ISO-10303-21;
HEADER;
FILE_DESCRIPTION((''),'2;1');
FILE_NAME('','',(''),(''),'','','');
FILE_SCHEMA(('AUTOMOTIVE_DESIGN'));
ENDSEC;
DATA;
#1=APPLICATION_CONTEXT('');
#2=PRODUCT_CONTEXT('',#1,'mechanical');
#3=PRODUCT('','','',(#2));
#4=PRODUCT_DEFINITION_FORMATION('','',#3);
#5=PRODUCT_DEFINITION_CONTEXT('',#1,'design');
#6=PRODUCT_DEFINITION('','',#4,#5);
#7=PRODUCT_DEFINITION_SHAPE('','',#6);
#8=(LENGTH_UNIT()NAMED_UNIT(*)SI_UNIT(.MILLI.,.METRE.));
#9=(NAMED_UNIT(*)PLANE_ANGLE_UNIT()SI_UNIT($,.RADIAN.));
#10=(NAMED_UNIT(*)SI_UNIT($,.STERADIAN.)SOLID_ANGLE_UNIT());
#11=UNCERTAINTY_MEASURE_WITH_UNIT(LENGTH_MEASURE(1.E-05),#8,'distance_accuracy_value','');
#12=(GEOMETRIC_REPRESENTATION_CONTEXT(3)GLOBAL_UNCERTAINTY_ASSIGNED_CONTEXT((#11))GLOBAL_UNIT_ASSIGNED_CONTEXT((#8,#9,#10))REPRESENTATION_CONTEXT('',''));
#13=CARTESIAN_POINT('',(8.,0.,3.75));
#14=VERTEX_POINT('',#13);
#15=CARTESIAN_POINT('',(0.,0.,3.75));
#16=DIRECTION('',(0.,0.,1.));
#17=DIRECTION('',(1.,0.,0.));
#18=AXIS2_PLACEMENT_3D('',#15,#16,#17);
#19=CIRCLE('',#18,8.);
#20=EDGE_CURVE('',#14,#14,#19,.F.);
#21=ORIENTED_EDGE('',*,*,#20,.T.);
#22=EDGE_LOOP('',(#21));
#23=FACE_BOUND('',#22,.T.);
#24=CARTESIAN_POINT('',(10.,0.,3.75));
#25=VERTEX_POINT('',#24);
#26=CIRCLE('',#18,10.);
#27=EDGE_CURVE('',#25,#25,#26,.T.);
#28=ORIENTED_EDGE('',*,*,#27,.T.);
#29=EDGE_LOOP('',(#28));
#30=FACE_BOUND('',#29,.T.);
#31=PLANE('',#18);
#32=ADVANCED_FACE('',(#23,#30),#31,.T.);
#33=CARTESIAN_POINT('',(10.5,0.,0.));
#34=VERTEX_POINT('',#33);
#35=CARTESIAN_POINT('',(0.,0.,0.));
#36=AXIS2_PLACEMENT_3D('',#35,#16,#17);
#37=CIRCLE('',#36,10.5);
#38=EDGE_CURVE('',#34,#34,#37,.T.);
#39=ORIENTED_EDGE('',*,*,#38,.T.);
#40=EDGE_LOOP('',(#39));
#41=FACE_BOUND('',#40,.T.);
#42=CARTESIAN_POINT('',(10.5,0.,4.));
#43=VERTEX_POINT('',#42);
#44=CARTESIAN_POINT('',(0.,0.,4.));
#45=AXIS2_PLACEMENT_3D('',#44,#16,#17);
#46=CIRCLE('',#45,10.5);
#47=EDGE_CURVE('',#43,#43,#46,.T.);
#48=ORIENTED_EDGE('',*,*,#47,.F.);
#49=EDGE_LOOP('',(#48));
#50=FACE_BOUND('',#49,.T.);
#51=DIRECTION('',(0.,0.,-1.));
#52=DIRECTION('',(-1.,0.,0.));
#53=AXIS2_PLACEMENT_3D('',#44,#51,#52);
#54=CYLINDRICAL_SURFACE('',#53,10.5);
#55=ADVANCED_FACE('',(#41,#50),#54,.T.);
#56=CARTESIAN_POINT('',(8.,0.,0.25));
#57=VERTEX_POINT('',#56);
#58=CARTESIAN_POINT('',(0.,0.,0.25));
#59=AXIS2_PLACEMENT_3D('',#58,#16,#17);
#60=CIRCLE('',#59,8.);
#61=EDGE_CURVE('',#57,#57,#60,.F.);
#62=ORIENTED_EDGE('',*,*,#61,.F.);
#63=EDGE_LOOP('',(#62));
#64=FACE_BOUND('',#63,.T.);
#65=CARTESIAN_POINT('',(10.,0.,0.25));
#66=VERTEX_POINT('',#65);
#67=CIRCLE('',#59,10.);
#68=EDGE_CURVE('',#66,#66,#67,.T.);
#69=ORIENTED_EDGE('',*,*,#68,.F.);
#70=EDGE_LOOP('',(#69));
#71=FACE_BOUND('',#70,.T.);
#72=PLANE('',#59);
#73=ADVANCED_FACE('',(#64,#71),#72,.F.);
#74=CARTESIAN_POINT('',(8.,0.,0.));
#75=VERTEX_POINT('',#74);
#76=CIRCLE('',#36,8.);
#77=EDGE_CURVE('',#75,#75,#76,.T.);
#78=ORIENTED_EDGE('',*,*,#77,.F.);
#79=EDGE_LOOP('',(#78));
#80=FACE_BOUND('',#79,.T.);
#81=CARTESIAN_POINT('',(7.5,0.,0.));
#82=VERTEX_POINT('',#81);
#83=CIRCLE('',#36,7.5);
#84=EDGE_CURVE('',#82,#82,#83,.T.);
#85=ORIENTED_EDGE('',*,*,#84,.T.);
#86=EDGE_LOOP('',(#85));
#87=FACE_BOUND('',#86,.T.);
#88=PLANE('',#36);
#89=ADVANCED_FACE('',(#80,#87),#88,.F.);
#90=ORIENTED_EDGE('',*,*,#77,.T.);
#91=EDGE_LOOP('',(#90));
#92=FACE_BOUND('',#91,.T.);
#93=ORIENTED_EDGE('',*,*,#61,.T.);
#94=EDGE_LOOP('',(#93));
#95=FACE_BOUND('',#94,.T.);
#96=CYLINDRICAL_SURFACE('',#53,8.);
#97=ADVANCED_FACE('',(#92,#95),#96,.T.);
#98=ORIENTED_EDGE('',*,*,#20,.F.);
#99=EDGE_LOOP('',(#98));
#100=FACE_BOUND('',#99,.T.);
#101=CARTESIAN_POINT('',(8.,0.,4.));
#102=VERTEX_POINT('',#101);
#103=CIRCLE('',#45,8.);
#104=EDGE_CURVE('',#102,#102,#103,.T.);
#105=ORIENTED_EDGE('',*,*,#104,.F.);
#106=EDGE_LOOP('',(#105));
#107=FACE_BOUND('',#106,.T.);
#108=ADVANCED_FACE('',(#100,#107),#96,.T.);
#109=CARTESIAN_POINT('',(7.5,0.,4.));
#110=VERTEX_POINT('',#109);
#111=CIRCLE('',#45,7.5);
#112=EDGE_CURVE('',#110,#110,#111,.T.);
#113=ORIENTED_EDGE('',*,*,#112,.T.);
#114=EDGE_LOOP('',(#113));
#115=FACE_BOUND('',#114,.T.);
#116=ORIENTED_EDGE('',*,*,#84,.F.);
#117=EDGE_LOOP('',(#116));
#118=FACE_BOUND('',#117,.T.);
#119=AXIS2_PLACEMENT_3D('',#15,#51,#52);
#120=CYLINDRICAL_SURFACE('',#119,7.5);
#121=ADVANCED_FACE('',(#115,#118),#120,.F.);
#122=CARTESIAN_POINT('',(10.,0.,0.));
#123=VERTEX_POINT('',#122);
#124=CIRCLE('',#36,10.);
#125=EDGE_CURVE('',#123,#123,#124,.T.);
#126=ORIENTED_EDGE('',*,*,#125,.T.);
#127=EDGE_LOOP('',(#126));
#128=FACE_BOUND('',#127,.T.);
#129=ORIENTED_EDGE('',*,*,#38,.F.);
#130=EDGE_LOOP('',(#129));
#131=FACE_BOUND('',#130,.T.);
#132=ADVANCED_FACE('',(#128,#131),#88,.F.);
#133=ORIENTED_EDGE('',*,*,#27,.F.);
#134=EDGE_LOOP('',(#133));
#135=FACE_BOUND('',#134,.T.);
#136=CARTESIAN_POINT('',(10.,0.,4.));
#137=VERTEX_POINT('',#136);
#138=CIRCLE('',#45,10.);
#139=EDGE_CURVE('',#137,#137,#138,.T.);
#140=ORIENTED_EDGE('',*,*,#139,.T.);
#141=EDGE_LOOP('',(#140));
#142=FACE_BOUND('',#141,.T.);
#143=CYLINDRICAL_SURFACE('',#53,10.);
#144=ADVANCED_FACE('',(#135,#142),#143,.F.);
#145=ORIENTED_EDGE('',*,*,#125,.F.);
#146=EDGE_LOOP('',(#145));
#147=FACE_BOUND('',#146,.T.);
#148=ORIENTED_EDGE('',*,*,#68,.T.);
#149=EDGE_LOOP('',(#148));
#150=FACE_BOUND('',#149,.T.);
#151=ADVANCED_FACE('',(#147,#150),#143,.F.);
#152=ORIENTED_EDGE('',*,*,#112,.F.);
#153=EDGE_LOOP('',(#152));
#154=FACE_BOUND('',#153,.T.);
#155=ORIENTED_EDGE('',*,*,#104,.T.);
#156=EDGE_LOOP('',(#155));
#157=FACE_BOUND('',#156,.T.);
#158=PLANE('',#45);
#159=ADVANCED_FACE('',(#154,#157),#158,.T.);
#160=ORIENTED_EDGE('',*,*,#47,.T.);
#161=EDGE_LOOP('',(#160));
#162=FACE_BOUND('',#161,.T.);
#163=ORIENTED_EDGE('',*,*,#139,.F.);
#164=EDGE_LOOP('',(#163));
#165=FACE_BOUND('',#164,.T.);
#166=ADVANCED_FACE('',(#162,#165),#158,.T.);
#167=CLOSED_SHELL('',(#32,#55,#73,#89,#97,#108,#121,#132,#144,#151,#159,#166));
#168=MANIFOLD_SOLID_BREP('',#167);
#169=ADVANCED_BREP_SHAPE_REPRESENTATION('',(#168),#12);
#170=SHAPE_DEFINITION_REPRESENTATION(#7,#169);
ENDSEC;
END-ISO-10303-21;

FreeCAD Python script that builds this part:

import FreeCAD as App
import Part
import Sketcher

doc = App.newDocument("Part")
body = doc.addObject("PartDesign::Body", "Body")

sketch1 = doc.addObject("Sketcher::SketchObject", "Sketch")
body.addObject(sketch1)
sketch1.AttachmentSupport = (doc.XY_Plane, [""])
sketch1.MapMode = "FlatFace"
sketch1.addGeometry([
    Part.Circle(App.Vector(0, 0, 0), App.Vector(0, 0, 1), 10),
    Part.Circle(App.Vector(0, 0, 0), App.Vector(0, 0, 1), 10),
], False)
sketch1.addConstraint([
    Sketcher.Constraint("Coincident", 0, 3, -1, 1),
    Sketcher.Constraint("Coincident", 1, 3, -1, 1),
    Sketcher.Constraint("Diameter", 0, 21.0),
    Sketcher.Constraint("Diameter", 1, 20.0),
])
pad1 = doc.addObject("PartDesign::Pad", "Pad")
body.addObject(pad1)
pad1.Profile = sketch1
pad1.Length = 4
body2 = doc.addObject("PartDesign::Body", "Body001")

sketch2 = doc.addObject("Sketcher::SketchObject", "Sketch001")
body2.addObject(sketch2)
sketch2.AttachmentSupport = (doc.getObject("XY_Plane001"), [""])
sketch2.MapMode = "FlatFace"
sketch2.addGeometry([
    Part.Circle(App.Vector(0, 0, 0), App.Vector(0, 0, 1), 8),
    Part.Circle(App.Vector(0, 0, 0), App.Vector(0, 0, 1), 8),
], False)
sketch2.addConstraint([
    Sketcher.Constraint("Coincident", 0, 3, -1, 1),
    Sketcher.Constraint("Coincident", 1, 3, -1, 1),
    Sketcher.Constraint("Diameter", 0, 16.0),
    Sketcher.Constraint("Diameter", 1, 15.0),
])
pad2 = doc.addObject("PartDesign::Pad", "Pad001")
body2.addObject(pad2)
pad2.Profile = sketch2
pad2.Length = 4
body.AllowCompound = True
doc.recompute()

boolean = doc.addObject("PartDesign::Boolean", "Boolean")
body.addObject(boolean)
boolean.Type = "Fuse"
boolean.addObjects([body2])

sketch3 = doc.addObject("Sketcher::SketchObject", "Sketch002")
body.addObject(sketch3)
sketch3.AttachmentSupport = (doc.XY_Plane, [""])
sketch3.MapMode = "FlatFace"
sketch3.AttachmentOffset = App.Placement(App.Vector(0, 0, 0.25), App.Rotation())
sketch3.addGeometry([
    Part.Circle(App.Vector(0, 0, 0), App.Vector(0, 0, 1), 10),
    Part.Circle(App.Vector(0, 0, 0), App.Vector(0, 0, 1), 8),
], False)
sketch3.addConstraint([
    Sketcher.Constraint("Coincident", 0, 3, -1, 1),
    Sketcher.Constraint("Coincident", 1, 3, -1, 1),
    Sketcher.Constraint("Diameter", 0, 21.0),
    Sketcher.Constraint("Diameter", 1, 15.0),
])
pad3 = doc.addObject("PartDesign::Pad", "Pad002")
body.addObject(pad3)
pad3.Profile = sketch3
pad3.Length = 3.5

doc.recompute()
